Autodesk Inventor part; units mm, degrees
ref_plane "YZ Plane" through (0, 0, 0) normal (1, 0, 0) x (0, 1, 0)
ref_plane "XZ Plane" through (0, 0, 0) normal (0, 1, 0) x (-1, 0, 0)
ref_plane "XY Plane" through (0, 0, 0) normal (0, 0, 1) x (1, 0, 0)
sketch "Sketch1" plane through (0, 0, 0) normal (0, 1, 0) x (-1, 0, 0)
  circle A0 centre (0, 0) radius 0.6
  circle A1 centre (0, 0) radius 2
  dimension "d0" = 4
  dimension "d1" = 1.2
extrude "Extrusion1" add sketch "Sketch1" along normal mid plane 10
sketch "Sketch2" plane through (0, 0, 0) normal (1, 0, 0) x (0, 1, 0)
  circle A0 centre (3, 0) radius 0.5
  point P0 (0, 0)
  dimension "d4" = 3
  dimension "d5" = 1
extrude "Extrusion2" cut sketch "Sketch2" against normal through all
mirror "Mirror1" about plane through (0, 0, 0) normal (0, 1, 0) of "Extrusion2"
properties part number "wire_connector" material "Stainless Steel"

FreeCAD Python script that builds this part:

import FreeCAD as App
import Part
import Sketcher
Q = App.Units.Quantity

doc = App.newDocument("Part")
params = doc.addObject("Spreadsheet::Sheet", "Params")
for row, (alias, value) in enumerate([
    ("sketch1_diameter", "4 mm"),
    ("sketch1_diameter2", "1.2 mm"),
    ("pad1_length", "10 mm"),
    ("sketch2_diameter", "1 mm"),
], start=1):
    params.set(f"A{row}", alias)
    params.set(f"B{row}", "=" + value)
    params.setAlias(f"B{row}", alias)

body = doc.addObject("PartDesign::Body", "Body")

sketch1 = body.newObject("Sketcher::SketchObject", "Sketch")
sketch1.AttachmentSupport = (doc.getObject("XZ_Plane"), [""])
sketch1.MapMode = "FlatFace"
sketch1.addGeometry(Part.Circle(App.Vector(0, 0, 0), App.Vector(0, 0, 1), 2), False)
sketch1.addGeometry(Part.Circle(App.Vector(0, 0, 0), App.Vector(0, 0, 1), 0.6), False)
sketch1.addConstraint(Sketcher.Constraint("Coincident", 0, 3, -1, 1))
sketch1.addConstraint(Sketcher.Constraint("Coincident", 1, 3, -1, 1))
sketch1.addConstraint(Sketcher.Constraint("Diameter", 0, Q("4 mm")))
sketch1.addConstraint(Sketcher.Constraint("Diameter", 1, Q("1.2 mm")))
sketch1.setExpression("Constraints[2]", "Params.sketch1_diameter")
sketch1.setExpression("Constraints[3]", "Params.sketch1_diameter2")
pad1 = body.newObject("PartDesign::Pad", "Pad")
pad1.Profile = sketch1
pad1.setExpression("Length", "Params.pad1_length")
pad1.Midplane = True

sketch2 = body.newObject("Sketcher::SketchObject", "Sketch001")
sketch2.AttachmentSupport = (doc.getObject("YZ_Plane"), [""])
sketch2.MapMode = "FlatFace"
sketch2.addGeometry(Part.Circle(App.Vector(3, 0, 0), App.Vector(0, 0, 1), 0.5), False)
sketch2.addConstraint(Sketcher.Constraint("PointOnObject", 0, 3, -1))
sketch2.addConstraint(Sketcher.Constraint("Diameter", 0, Q("1 mm")))
sketch2.addConstraint(Sketcher.Constraint("DistanceX", -1, 1, 0, 3, Q("3 mm")))
sketch2.setExpression("Constraints[1]", "Params.sketch2_diameter")
pocket1 = body.newObject("PartDesign::Pocket", "Pocket")
pocket1.Profile = sketch2
pocket1.Type = "ThroughAll"
doc.recompute()

mirrored = body.newObject("PartDesign::Mirrored", "Mirrored")
mirrored.Originals = [pocket1]
mirrored.MirrorPlane = (doc.getObject("XZ_Plane"), [""])
body.Tip = mirrored

doc.recompute()
